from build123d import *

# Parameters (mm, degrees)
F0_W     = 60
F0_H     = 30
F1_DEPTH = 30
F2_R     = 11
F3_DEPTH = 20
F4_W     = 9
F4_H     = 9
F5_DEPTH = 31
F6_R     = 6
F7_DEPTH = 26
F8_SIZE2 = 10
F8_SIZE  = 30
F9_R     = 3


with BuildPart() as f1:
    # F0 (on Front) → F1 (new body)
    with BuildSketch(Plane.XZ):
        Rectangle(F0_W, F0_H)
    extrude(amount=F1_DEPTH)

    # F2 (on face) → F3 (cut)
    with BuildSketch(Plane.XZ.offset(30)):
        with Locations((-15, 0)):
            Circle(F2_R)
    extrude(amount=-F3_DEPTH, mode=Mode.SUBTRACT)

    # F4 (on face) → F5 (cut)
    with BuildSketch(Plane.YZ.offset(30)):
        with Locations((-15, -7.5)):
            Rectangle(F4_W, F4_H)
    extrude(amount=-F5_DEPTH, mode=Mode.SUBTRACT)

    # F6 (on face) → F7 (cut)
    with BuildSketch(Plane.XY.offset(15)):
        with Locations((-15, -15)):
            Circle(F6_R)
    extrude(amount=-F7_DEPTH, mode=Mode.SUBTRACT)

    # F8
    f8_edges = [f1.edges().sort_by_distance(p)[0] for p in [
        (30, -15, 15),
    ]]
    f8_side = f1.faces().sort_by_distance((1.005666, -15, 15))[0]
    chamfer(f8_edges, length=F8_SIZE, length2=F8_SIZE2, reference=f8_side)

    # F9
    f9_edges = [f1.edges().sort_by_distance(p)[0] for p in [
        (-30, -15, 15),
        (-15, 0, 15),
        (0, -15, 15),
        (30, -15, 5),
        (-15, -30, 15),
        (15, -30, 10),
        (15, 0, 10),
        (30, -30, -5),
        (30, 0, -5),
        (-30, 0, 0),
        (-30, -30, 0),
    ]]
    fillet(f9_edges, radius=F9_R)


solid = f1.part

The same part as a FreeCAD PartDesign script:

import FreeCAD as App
import Part
import Sketcher

V = App.Vector


def edges_at(feature, points):
    """Names of the edges that pass closest to the given points."""
    edges = feature.Shape.Edges
    near = lambda p: min(range(len(edges)), key=lambda i: edges[i].distToShape(Part.Vertex(*p))[0])
    return sorted({f"Edge{near(p) + 1}" for p in points})


def add_polygon(sketch, points):
    """Adds a closed chain of lines whose ends are joined by coincident constraints."""
    first, n = sketch.GeometryCount, len(points)
    for a, b in zip(points, points[1:] + points[:1]):
        sketch.addGeometry(Part.LineSegment(App.Vector(*a, 0), App.Vector(*b, 0)), False)
    for i in range(n):
        sketch.addConstraint(Sketcher.Constraint("Coincident", first + i, 2, first + (i + 1) % n, 1))

doc = App.newDocument("Part")
params = doc.addObject("Spreadsheet::Sheet", "Params")
for row, (alias, value) in enumerate([
    ("sketch1_width", "60 mm"),
    ("sketch1_height", "30 mm"),
    ("pad1_length", "30 mm"),
    ("sketch2_diameter", "22 mm"),
    ("pocket1_length", "20 mm"),
    ("sketch3_width", "9 mm"),
    ("pocket2_length", "31 mm"),
    ("sketch4_diameter", "12 mm"),
    ("pocket3_length", "26 mm"),
    ("chamfer_size", "30 mm"),
    ("chamfer_size2", "10 mm"),
    ("fillet_radius", "3 mm"),
], start=1):
    params.set(f"A{row}", alias)
    params.set(f"B{row}", "=" + value)
    params.setAlias(f"B{row}", alias)

body = doc.addObject("PartDesign::Body", "Body")

sketch1 = doc.addObject("Sketcher::SketchObject", "Sketch")
body.addObject(sketch1)
sketch1.AttachmentSupport = (doc.XZ_Plane, [""])
sketch1.MapMode = "FlatFace"
add_polygon(sketch1, [(-30, 15), (-30, -15), (30, -15), (30, 15)])
sketch1.addConstraint([
    Sketcher.Constraint("Vertical", 0),
    Sketcher.Constraint("Horizontal", 1),
    Sketcher.Constraint("Vertical", 2),
    Sketcher.Constraint("Horizontal", 3),
    Sketcher.Constraint("Symmetric", 0, 2, 2, 2, -1, 1),
    Sketcher.Constraint("DistanceX", 1, 1, 1, 2, 60.0),
    Sketcher.Constraint("DistanceY", 0, 2, 0, 1, 30.0),
])
sketch1.setExpression("Constraints[9]", "Params.sketch1_width")
sketch1.setExpression("Constraints[10]", "Params.sketch1_height")
pad1 = doc.addObject("PartDesign::Pad", "Pad")
body.addObject(pad1)
pad1.Profile = sketch1
pad1.setExpression("Length", "Params.pad1_length")

sketch2 = doc.addObject("Sketcher::SketchObject", "Sketch001")
body.addObject(sketch2)
sketch2.AttachmentSupport = (doc.XZ_Plane, [""])
sketch2.MapMode = "FlatFace"
sketch2.AttachmentOffset = App.Placement(V(0, 0, 30), App.Rotation())
sketch2.addGeometry(Part.Circle(V(-15, 0, 0), V(0, 0, 1), 11), False)
sketch2.addConstraint([
    Sketcher.Constraint("PointOnObject", 0, 3, -1),
    Sketcher.Constraint("Diameter", 0, 22.0),
    Sketcher.Constraint("DistanceX", 0, 3, -1, 1, 15.0),
])
sketch2.setExpression("Constraints[1]", "Params.sketch2_diameter")
pocket1 = doc.addObject("PartDesign::Pocket", "Pocket")
body.addObject(pocket1)
pocket1.Profile = sketch2
pocket1.setExpression("Length", "Params.pocket1_length")

sketch3 = doc.addObject("Sketcher::SketchObject", "Sketch002")
body.addObject(sketch3)
sketch3.AttachmentSupport = (doc.YZ_Plane, [""])
sketch3.MapMode = "FlatFace"
sketch3.AttachmentOffset = App.Placement(V(0, 0, 30), App.Rotation())
add_polygon(sketch3, [(-20, -3), (-20, -12), (-10, -12), (-10, -3)])
sketch3.addConstraint([
    Sketcher.Constraint("Vertical", 0),
    Sketcher.Constraint("Horizontal", 1),
    Sketcher.Constraint("Vertical", 2),
    Sketcher.Constraint("Horizontal", 3),
    Sketcher.Constraint("Equal", 3, 0),
    Sketcher.Constraint("DistanceX", 1, 1, 1, 2, 9.0),
    Sketcher.Constraint("DistanceY", 0, 2, -1, 1, 12.0),
    Sketcher.Constraint("DistanceX", 0, 2, -1, 1, 19.5),
])
sketch3.setExpression("Constraints[9]", "Params.sketch3_width")
pocket2 = doc.addObject("PartDesign::Pocket", "Pocket001")
body.addObject(pocket2)
pocket2.Profile = sketch3
pocket2.setExpression("Length", "Params.pocket2_length")

sketch4 = doc.addObject("Sketcher::SketchObject", "Sketch003")
body.addObject(sketch4)
sketch4.AttachmentSupport = (doc.XY_Plane, [""])
sketch4.MapMode = "FlatFace"
sketch4.AttachmentOffset = App.Placement(V(0, 0, 15), App.Rotation())
sketch4.addGeometry(Part.Circle(V(-15, -15, 0), V(0, 0, 1), 6), False)
sketch4.addConstraint([
    Sketcher.Constraint("Diameter", 0, 12.0),
    Sketcher.Constraint("DistanceX", 0, 3, -1, 1, 15.0),
    Sketcher.Constraint("DistanceY", 0, 3, -1, 1, 15.0),
])
sketch4.setExpression("Constraints[0]", "Params.sketch4_diameter")
pocket3 = doc.addObject("PartDesign::Pocket", "Pocket002")
body.addObject(pocket3)
pocket3.Profile = sketch4
pocket3.setExpression("Length", "Params.pocket3_length")
doc.recompute()

chamfer = doc.addObject("PartDesign::Chamfer", "Chamfer")
body.addObject(chamfer)
chamfer.Base = (pocket3, edges_at(pocket3, [(30, -15, 15)]))
chamfer.ChamferType = "Two distances"
chamfer.setExpression("Size", "Params.chamfer_size")
chamfer.setExpression("Size2", "Params.chamfer_size2")
doc.recompute()

fillet = doc.addObject("PartDesign::Fillet", "Fillet")
body.addObject(fillet)
fillet.Base = (chamfer, edges_at(chamfer, [
    (-30, -15, 15),
    (-15, 0, 15),
    (0, -15, 15),
    (30, -15, 5),
    (-15, -30, 15),
    (15, -30, 10),
    (15, 0, 10),
    (30, -30, -5),
    (30, 0, -5),
    (-30, 0, 0),
    (-30, -30, 0),
]))
fillet.setExpression("Radius", "Params.fillet_radius")

doc.recompute()
